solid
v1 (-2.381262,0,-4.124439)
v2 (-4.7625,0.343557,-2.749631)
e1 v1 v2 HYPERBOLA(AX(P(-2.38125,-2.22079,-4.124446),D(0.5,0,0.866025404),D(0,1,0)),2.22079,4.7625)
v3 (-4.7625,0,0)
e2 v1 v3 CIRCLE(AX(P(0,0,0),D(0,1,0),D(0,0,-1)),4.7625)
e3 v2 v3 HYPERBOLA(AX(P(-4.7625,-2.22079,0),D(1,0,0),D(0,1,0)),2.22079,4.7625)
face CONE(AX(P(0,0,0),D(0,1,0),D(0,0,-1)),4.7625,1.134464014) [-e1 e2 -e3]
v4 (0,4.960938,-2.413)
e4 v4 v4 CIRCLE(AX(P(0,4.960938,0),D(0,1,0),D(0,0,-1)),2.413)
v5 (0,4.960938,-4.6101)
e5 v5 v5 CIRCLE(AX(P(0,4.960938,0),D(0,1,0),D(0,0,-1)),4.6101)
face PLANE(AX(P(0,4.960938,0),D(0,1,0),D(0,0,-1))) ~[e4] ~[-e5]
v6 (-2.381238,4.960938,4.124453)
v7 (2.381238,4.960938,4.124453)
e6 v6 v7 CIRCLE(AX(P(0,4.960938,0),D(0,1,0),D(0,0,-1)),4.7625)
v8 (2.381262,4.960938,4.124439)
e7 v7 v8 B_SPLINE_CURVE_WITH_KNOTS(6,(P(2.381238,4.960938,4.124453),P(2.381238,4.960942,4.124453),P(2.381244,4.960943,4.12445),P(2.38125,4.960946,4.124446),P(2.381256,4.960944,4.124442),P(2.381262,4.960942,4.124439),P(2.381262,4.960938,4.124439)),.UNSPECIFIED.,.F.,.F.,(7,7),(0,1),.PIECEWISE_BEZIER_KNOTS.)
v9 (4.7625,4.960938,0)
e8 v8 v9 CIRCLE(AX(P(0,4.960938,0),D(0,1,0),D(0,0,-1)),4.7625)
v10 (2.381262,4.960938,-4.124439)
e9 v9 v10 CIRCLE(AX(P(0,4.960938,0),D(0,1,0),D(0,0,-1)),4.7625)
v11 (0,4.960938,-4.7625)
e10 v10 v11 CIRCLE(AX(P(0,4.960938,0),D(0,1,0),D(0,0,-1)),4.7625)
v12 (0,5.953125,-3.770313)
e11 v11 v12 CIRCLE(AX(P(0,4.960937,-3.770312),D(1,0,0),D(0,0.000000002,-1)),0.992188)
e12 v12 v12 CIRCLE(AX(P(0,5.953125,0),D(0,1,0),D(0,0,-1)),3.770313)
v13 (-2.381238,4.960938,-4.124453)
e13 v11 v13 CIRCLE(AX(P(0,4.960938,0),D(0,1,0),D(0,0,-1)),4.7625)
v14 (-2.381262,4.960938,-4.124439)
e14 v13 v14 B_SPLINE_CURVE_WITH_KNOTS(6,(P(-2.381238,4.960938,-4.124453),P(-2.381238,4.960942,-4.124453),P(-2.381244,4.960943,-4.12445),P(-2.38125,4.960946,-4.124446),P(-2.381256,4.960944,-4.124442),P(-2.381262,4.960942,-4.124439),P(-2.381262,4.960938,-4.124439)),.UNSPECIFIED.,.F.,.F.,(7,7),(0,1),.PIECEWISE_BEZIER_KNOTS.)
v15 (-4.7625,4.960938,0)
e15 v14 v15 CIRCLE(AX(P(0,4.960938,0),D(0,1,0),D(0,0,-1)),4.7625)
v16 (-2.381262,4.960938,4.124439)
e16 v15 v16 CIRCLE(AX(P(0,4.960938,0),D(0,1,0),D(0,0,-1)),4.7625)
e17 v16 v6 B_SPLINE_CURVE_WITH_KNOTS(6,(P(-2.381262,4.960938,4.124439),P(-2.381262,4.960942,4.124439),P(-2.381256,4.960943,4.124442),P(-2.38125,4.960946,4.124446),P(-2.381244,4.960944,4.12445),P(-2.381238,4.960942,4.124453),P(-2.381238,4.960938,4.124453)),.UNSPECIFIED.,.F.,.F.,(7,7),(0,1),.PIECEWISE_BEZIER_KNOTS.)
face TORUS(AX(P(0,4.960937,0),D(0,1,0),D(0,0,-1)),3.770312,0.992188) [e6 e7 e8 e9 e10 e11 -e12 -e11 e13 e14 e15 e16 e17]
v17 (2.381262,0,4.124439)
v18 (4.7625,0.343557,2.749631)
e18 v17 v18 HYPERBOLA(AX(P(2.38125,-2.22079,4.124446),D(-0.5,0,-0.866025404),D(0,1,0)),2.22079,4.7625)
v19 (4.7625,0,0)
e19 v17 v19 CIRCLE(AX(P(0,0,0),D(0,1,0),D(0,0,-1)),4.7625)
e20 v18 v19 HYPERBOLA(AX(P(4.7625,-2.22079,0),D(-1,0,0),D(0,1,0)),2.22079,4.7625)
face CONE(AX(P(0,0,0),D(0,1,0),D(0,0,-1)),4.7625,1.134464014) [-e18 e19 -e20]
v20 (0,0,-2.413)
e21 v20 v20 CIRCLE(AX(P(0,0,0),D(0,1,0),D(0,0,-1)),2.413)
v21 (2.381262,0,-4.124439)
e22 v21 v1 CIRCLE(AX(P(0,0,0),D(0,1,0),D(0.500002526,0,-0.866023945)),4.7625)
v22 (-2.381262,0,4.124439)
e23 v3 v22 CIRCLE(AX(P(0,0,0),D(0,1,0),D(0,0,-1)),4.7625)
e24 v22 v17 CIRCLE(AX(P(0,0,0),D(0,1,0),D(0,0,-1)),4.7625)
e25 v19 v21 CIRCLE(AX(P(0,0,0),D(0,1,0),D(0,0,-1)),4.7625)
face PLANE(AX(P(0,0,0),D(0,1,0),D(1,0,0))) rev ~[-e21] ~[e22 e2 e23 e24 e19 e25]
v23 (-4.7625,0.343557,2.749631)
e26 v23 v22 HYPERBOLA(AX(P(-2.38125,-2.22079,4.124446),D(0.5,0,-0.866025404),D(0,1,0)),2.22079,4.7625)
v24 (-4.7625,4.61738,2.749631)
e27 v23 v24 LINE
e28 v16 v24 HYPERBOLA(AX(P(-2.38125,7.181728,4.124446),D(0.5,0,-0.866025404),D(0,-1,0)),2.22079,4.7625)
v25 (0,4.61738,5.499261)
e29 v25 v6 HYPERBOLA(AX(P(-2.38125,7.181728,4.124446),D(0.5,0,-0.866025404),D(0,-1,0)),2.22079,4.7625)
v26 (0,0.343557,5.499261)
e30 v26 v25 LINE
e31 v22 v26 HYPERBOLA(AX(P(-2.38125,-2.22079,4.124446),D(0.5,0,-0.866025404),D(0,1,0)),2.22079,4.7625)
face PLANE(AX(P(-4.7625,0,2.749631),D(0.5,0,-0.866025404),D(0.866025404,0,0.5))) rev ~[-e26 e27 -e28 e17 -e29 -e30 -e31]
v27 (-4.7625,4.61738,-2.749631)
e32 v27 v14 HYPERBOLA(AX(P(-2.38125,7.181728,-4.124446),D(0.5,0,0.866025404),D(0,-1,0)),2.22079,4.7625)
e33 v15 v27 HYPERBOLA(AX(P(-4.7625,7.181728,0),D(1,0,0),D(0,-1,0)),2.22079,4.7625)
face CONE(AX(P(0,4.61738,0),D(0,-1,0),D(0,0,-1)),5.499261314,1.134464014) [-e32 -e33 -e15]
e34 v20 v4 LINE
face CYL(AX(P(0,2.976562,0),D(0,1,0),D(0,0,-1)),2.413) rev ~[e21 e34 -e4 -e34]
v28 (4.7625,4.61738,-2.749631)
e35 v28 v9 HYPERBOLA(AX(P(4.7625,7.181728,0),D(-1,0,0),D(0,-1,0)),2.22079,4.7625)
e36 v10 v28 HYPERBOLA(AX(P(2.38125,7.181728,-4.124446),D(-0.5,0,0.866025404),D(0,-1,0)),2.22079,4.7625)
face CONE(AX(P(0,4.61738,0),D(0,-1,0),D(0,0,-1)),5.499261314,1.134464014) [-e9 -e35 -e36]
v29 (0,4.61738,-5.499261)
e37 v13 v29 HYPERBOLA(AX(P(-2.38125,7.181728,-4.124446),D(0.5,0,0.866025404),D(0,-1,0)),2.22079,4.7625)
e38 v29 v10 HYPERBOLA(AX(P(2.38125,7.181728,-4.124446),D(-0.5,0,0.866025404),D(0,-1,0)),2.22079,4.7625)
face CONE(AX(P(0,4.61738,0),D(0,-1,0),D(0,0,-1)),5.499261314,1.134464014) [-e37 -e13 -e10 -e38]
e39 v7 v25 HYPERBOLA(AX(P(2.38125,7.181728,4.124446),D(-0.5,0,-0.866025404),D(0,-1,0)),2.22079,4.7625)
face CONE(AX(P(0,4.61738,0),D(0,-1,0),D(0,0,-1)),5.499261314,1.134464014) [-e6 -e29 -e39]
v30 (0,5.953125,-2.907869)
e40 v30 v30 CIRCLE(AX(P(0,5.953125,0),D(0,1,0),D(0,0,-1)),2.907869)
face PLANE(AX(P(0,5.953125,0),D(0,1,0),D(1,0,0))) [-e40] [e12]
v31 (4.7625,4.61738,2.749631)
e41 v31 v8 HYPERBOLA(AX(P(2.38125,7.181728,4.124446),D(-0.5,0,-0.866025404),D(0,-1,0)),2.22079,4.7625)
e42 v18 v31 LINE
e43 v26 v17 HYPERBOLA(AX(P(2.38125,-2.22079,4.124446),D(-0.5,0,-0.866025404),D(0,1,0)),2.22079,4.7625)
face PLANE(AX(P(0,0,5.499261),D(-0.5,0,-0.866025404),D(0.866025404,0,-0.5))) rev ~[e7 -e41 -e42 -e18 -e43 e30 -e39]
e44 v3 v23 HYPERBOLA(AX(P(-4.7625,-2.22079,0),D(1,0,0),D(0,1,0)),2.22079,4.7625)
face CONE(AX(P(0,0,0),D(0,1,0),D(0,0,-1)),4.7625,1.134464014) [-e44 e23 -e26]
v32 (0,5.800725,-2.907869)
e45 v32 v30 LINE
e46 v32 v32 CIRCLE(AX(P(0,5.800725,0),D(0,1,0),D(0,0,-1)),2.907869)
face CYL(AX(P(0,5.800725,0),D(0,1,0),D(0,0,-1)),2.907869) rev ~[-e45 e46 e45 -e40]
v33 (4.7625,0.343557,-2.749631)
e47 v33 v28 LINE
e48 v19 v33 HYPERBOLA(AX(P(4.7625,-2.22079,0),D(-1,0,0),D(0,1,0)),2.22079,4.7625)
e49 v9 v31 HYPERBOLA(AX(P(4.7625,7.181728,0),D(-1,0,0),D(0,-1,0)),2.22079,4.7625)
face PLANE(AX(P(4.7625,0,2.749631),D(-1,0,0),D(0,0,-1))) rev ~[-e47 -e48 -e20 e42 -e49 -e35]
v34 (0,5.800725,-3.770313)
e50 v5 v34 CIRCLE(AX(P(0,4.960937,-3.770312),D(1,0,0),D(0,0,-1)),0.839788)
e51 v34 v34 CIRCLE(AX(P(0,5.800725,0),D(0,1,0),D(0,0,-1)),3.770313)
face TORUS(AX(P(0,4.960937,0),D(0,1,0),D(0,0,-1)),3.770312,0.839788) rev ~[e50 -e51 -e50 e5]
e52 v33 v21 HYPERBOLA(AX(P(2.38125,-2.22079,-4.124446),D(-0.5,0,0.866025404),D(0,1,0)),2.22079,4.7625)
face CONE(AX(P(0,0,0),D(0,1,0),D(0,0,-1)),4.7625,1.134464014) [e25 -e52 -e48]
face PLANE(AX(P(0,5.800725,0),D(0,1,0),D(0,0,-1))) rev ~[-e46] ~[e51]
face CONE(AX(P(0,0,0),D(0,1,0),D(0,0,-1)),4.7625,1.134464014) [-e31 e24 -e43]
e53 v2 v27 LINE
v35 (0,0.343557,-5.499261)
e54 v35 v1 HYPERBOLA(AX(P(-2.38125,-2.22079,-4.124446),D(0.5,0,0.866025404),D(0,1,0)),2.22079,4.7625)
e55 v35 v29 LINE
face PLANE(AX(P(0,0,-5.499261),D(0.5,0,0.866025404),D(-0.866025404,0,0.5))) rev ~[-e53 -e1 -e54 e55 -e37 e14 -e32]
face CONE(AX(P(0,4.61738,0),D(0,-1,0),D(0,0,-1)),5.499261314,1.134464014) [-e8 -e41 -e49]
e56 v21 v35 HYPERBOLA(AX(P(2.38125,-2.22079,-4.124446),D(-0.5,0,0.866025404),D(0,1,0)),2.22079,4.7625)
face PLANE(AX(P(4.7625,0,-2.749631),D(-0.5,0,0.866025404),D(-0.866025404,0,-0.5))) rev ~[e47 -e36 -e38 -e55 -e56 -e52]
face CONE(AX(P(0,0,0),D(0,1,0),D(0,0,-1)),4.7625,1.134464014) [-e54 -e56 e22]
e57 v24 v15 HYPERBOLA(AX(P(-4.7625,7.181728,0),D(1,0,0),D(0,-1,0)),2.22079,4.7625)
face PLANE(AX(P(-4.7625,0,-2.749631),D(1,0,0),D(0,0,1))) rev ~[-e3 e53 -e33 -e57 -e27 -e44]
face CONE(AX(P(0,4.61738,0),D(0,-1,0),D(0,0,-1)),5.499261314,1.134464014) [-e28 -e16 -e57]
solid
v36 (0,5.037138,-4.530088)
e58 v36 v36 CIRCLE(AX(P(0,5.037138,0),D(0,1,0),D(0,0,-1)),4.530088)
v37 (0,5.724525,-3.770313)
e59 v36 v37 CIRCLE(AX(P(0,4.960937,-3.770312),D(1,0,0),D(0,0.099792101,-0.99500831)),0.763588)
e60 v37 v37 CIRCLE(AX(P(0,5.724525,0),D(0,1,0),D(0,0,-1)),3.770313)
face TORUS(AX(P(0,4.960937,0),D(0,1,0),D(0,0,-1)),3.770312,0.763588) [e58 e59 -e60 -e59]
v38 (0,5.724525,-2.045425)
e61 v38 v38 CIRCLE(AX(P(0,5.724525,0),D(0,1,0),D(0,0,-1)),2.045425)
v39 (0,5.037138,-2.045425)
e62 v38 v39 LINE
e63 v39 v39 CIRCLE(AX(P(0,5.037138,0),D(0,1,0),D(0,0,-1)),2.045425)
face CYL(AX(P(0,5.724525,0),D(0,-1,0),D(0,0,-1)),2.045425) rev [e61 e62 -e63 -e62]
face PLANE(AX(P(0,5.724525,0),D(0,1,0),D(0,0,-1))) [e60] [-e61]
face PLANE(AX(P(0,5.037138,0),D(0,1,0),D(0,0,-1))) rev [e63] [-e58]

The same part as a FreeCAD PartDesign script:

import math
import FreeCAD as App
import Part
import Sketcher
Q = App.Units.Quantity

doc = App.newDocument("Part")
params = doc.addObject("Spreadsheet::Sheet", "Params")
for row, (alias, value) in enumerate([
    ("pad1_length", "0.234375 in"),
    ("sketch2_width", "0.234375 in"),
    ("sketch2_height", "0.095 in"),
    ("revolution_angle", "360 deg"),
    ("sketch3_width", "0.05 in"),
    ("sketch3_height", "0.1875 in"),
    ("groove_angle", "360 deg"),
    ("sketch4_width", "0.056 in"),
    ("groove2_angle", "360 deg"),
    ("revolution2_angle", "360 deg"),
], start=1):
    params.set(f"A{row}", alias)
    params.set(f"B{row}", "=" + value)
    params.setAlias(f"B{row}", alias)

body = doc.addObject("PartDesign::Body", "Body")

# Sketch on XZ plane
sketch1 = body.newObject("Sketcher::SketchObject", "Sketch")
sketch1.AttachmentSupport = (doc.getObject("XZ_Plane"), [""])
sketch1.MapMode = "FlatFace"
sketch1.addGeometry(Part.LineSegment(App.Vector(0, -5, 0), App.Vector(-5, -3, 0)), False)
sketch1.addGeometry(Part.LineSegment(App.Vector(-5, -3, 0), App.Vector(-5, 3, 0)), False)
sketch1.addGeometry(Part.LineSegment(App.Vector(-5, 3, 0), App.Vector(0, 5, 0)), False)
sketch1.addGeometry(Part.LineSegment(App.Vector(0, 5, 0), App.Vector(5, 3, 0)), False)
sketch1.addGeometry(Part.LineSegment(App.Vector(5, 3, 0), App.Vector(5, -3, 0)), False)
sketch1.addGeometry(Part.LineSegment(App.Vector(5, -3, 0), App.Vector(0, -5, 0)), False)
sketch1.addConstraint(Sketcher.Constraint("Coincident", 0, 2, 1, 1))
sketch1.addConstraint(Sketcher.Constraint("Coincident", 1, 2, 2, 1))
sketch1.addConstraint(Sketcher.Constraint("Coincident", 2, 2, 3, 1))
sketch1.addConstraint(Sketcher.Constraint("Coincident", 3, 2, 4, 1))
sketch1.addConstraint(Sketcher.Constraint("Coincident", 4, 2, 5, 1))
sketch1.addConstraint(Sketcher.Constraint("Coincident", 5, 2, 0, 1))
sketch1.addConstraint(Sketcher.Constraint("Vertical", 1))
sketch1.addConstraint(Sketcher.Constraint("Vertical", 4))
sketch1.addConstraint(Sketcher.Constraint("Symmetric", 0, 2, 3, 2, -1, 1))
sketch1.addConstraint(Sketcher.Constraint("Symmetric", 2, 2, 5, 2, -1, 1))
sketch1.addConstraint(Sketcher.Constraint("PointOnObject", 2, 2, -2))
sketch1.addConstraint(Sketcher.Constraint("Parallel", 2, 5))
sketch1.addConstraint(Sketcher.Constraint("Horizontal", 1, 2, 3, 2))
sketch1.addConstraint(Sketcher.Constraint("Angle", 0, Q("150 deg")))
sketch1.addConstraint(Sketcher.Constraint("DistanceX", 0, 2, -1, 1, Q("0.1875 in")))
sketch1.addConstraint(Sketcher.Constraint("DistanceY", 1, 1, 1, 2, Q("5.499261 mm")))
pad1 = body.newObject("PartDesign::Pad", "Pad")
pad1.Profile = sketch1
pad1.setExpression("Length", "Params.pad1_length")
pad1.Reversed = True
body2 = doc.addObject("PartDesign::Body", "Body001")

# Sketch on YZ plane
sketch2 = body2.newObject("Sketcher::SketchObject", "Sketch001")
sketch2.AttachmentSupport = (doc.getObject("YZ_Plane001"), [""])
sketch2.MapMode = "FlatFace"
sketch2.addGeometry(Part.LineSegment(App.Vector(6, 0, 0), App.Vector(0, 0, 0)), False)
sketch2.addGeometry(Part.LineSegment(App.Vector(0, 0, 0), App.Vector(0, -2.4, 0)), False)
sketch2.addGeometry(Part.LineSegment(App.Vector(0, -2.4, 0), App.Vector(6, -2.4, 0)), False)
sketch2.addGeometry(Part.LineSegment(App.Vector(6, -2.4, 0), App.Vector(6, 0, 0)), False)
sketch2.addConstraint(Sketcher.Constraint("Coincident", 0, 2, 1, 1))
sketch2.addConstraint(Sketcher.Constraint("Coincident", 1, 2, 2, 1))
sketch2.addConstraint(Sketcher.Constraint("Coincident", 2, 2, 3, 1))
sketch2.addConstraint(Sketcher.Constraint("Coincident", 3, 2, 0, 1))
sketch2.addConstraint(Sketcher.Constraint("Horizontal", 0))
sketch2.addConstraint(Sketcher.Constraint("Vertical", 1))
sketch2.addConstraint(Sketcher.Constraint("Horizontal", 2))
sketch2.addConstraint(Sketcher.Constraint("Vertical", 3))
sketch2.addConstraint(Sketcher.Constraint("Coincident", 0, 2, -1, 1))
sketch2.addConstraint(Sketcher.Constraint("DistanceX", 0, 2, 0, 1, Q("0.234375 in")))
sketch2.addConstraint(Sketcher.Constraint("DistanceY", 1, 2, 1, 1, Q("0.095 in")))
sketch2.setExpression("Constraints[9]", "Params.sketch2_width")
sketch2.setExpression("Constraints[10]", "Params.sketch2_height")
revolution = body2.newObject("PartDesign::Revolution", "Revolution")
revolution.Profile = sketch2
revolution.ReferenceAxis = (sketch2, ["H_Axis"])
revolution.setExpression("Angle", "Params.revolution_angle")
doc.recompute()

boolean = body.newObject("PartDesign::Boolean", "Boolean")
boolean.Type = "Cut"
boolean.addObjects([body2])

# Sketch on YZ plane
sketch3 = body.newObject("Sketcher::SketchObject", "Sketch002")
sketch3.AttachmentSupport = (doc.getObject("YZ_Plane"), [""])
sketch3.MapMode = "FlatFace"
sketch3.addGeometry(Part.LineSegment(App.Vector(0, -4.8, 0), App.Vector(0, 0, 0)), False)
sketch3.addGeometry(Part.LineSegment(App.Vector(0, 0, 0), App.Vector(-1.3, 0, 0)), False)
sketch3.addGeometry(Part.LineSegment(App.Vector(-1.3, 0, 0), App.Vector(-1.3, -6.8, 0)), False)
sketch3.addGeometry(Part.LineSegment(App.Vector(-1.3, -6.8, 0), App.Vector(7.2, -6.8, 0)), False)
sketch3.addGeometry(Part.LineSegment(App.Vector(7.2, -6.8, 0), App.Vector(7.2, -3.8, 0)), False)
sketch3.addGeometry(Part.LineSegment(App.Vector(7.2, -3.8, 0), App.Vector(6, -3.8, 0)), False)
sketch3.addGeometry(Part.ArcOfCircle(Part.Circle(App.Vector(5, -3.8, 0), App.Vector(0, 0, 1), 1), math.radians(-90), math.radians(0)), False)
sketch3.addGeometry(Part.LineSegment(App.Vector(5, -4.8, 0), App.Vector(4.6, -5.5, 0)), False)
sketch3.addGeometry(Part.LineSegment(App.Vector(4.6, -5.5, 0), App.Vector(0.3, -5.5, 0)), False)
sketch3.addGeometry(Part.LineSegment(App.Vector(0.3, -5.5, 0), App.Vector(0, -4.8, 0)), False)
sketch3.addConstraint(Sketcher.Constraint("Coincident", 0, 2, 1, 1))
sketch3.addConstraint(Sketcher.Constraint("Coincident", 1, 2, 2, 1))
sketch3.addConstraint(Sketcher.Constraint("Coincident", 2, 2, 3, 1))
sketch3.addConstraint(Sketcher.Constraint("Coincident", 3, 2, 4, 1))
sketch3.addConstraint(Sketcher.Constraint("Coincident", 4, 2, 5, 1))
sketch3.addConstraint(Sketcher.Constraint("Coincident", 5, 2, 6, 2))
sketch3.addConstraint(Sketcher.Constraint("Coincident", 6, 1, 7, 1))
sketch3.addConstraint(Sketcher.Constraint("Coincident", 7, 2, 8, 1))
sketch3.addConstraint(Sketcher.Constraint("Coincident", 8, 2, 9, 1))
sketch3.addConstraint(Sketcher.Constraint("Coincident", 9, 2, 0, 1))
sketch3.addConstraint(Sketcher.Constraint("Vertical", 0))
sketch3.addConstraint(Sketcher.Constraint("Horizontal", 1))
sketch3.addConstraint(Sketcher.Constraint("Vertical", 2))
sketch3.addConstraint(Sketcher.Constraint("Horizontal", 3))
sketch3.addConstraint(Sketcher.Constraint("Vertical", 4))
sketch3.addConstraint(Sketcher.Constraint("Horizontal", 5))
sketch3.addConstraint(Sketcher.Constraint("Horizontal", 8))
sketch3.addConstraint(Sketcher.Constraint("Coincident", 0, 2, -1, 1))
sketch3.addConstraint(Sketcher.Constraint("Horizontal", 6, 3, 4, 2))
sketch3.addConstraint(Sketcher.Constraint("Horizontal", 6, 1, 9, 2))
sketch3.addConstraint(Sketcher.Constraint("Equal", 1, 5))
sketch3.addConstraint(Sketcher.Constraint("Equal", 7, 9))
sketch3.addConstraint(Sketcher.Constraint("Angle", 7, Q("-115 deg")))
sketch3.addConstraint(Sketcher.Constraint("DistanceX", 1, 2, 1, 1, Q("0.05 in")))
sketch3.addConstraint(Sketcher.Constraint("DistanceY", 0, 1, 0, 2, Q("0.1875 in")))
sketch3.addConstraint(Sketcher.Constraint("DistanceY", 3, 2, 7, 2, Q("0.05 in")))
sketch3.addConstraint(Sketcher.Constraint("DistanceX", -1, 1, 5, 2, Q("0.234375 in")))
sketch3.addConstraint(Sketcher.Constraint("Radius", 6, Q("0.992188 mm")))
sketch3.addConstraint(Sketcher.Constraint("DistanceY", 2, 2, 2, 1, Q("6.769261 mm")))
sketch3.addConstraint(Sketcher.Constraint("DistanceX", 8, 2, 8, 1, Q("4.273823 mm")))
sketch3.setExpression("Constraints[23]", "Params.sketch3_width")
sketch3.setExpression("Constraints[24]", "Params.sketch3_height")
groove = body.newObject("PartDesign::Groove", "Groove")
groove.Profile = sketch3
groove.ReferenceAxis = (sketch3, ["H_Axis"])
groove.setExpression("Angle", "Params.groove_angle")

# Sketch on YZ plane
sketch4 = body.newObject("Sketcher::SketchObject", "Sketch003")
sketch4.AttachmentSupport = (doc.getObject("YZ_Plane"), [""])
sketch4.MapMode = "FlatFace"
sketch4.addGeometry(Part.LineSegment(App.Vector(5, 0, 0), App.Vector(5, -4.6, 0)), False)
sketch4.addGeometry(Part.ArcOfCircle(Part.Circle(App.Vector(5, -3.8, 0), App.Vector(0, 0, 1), 0.8), math.radians(-90), math.radians(0)), False)
sketch4.addGeometry(Part.LineSegment(App.Vector(5.8, -3.8, 0), App.Vector(5.8, -2.9, 0)), False)
sketch4.addGeometry(Part.LineSegment(App.Vector(5.8, -2.9, 0), App.Vector(7.2, -2.9, 0)), False)
sketch4.addGeometry(Part.LineSegment(App.Vector(7.2, -2.9, 0), App.Vector(7.2, 0, 0)), False)
sketch4.addGeometry(Part.LineSegment(App.Vector(7.2, 0, 0), App.Vector(5, 0, 0)), False)
sketch4.addConstraint(Sketcher.Constraint("Coincident", 0, 2, 1, 1))
sketch4.addConstraint(Sketcher.Constraint("Tangent", 1, 2, 2, 1))
sketch4.addConstraint(Sketcher.Constraint("Coincident", 2, 2, 3, 1))
sketch4.addConstraint(Sketcher.Constraint("Coincident", 3, 2, 4, 1))
sketch4.addConstraint(Sketcher.Constraint("Coincident", 4, 2, 5, 1))
sketch4.addConstraint(Sketcher.Constraint("Coincident", 5, 2, 0, 1))
sketch4.addConstraint(Sketcher.Constraint("Vertical", 0))
sketch4.addConstraint(Sketcher.Constraint("Vertical", 2))
sketch4.addConstraint(Sketcher.Constraint("Horizontal", 3))
sketch4.addConstraint(Sketcher.Constraint("Vertical", 4))
sketch4.addConstraint(Sketcher.Constraint("Horizontal", 5))
sketch4.addConstraint(Sketcher.Constraint("PointOnObject", 4, 2, -1))
sketch4.addConstraint(Sketcher.Constraint("Vertical", 1, 3, 0, 2))
sketch4.addConstraint(Sketcher.Constraint("DistanceX", 3, 1, 3, 2, Q("0.056 in")))
sketch4.addConstraint(Sketcher.Constraint("DistanceY", 0, 2, 0, 1, Q("0.1815 in")))
sketch4.addConstraint(Sketcher.Constraint("Radius", 1, Q("0.839788 mm")))
sketch4.addConstraint(Sketcher.Constraint("DistanceY", 4, 1, 4, 2, Q("2.907869 mm")))
sketch4.addConstraint(Sketcher.Constraint("DistanceX", -1, 1, 1, 3, Q("4.960938 mm")))
sketch4.setExpression("Constraints[13]", "Params.sketch4_width")
groove2 = body.newObject("PartDesign::Groove", "Groove001")
groove2.Profile = sketch4
groove2.ReferenceAxis = (sketch4, ["H_Axis"])
groove2.setExpression("Angle", "Params.groove2_angle")
body3 = doc.addObject("PartDesign::Body", "Body002")

# Sketch on YZ plane
sketch5 = body3.newObject("Sketcher::SketchObject", "Sketch004")
sketch5.AttachmentSupport = (doc.getObject("YZ_Plane002"), [""])
sketch5.MapMode = "FlatFace"
sketch5.addGeometry(Part.LineSegment(App.Vector(5, -2, 0), App.Vector(5, -4.5, 0)), False)
sketch5.addGeometry(Part.ArcOfCircle(Part.Circle(App.Vector(5, -3.8, 0), App.Vector(0, 0, 1), 0.8), math.radians(-84), math.radians(0)), False)
sketch5.addGeometry(Part.LineSegment(App.Vector(5.7, -3.8, 0), App.Vector(5.7, -2, 0)), False)
sketch5.addGeometry(Part.LineSegment(App.Vector(5.7, -2, 0), App.Vector(5, -2, 0)), False)
sketch5.addConstraint(Sketcher.Constraint("Coincident", 0, 2, 1, 1))
sketch5.addConstraint(Sketcher.Constraint("Tangent", 1, 2, 2, 1))
sketch5.addConstraint(Sketcher.Constraint("Coincident", 2, 2, 3, 1))
sketch5.addConstraint(Sketcher.Constraint("Coincident", 3, 2, 0, 1))
sketch5.addConstraint(Sketcher.Constraint("Vertical", 0))
sketch5.addConstraint(Sketcher.Constraint("Vertical", 2))
sketch5.addConstraint(Sketcher.Constraint("Horizontal", 3))
sketch5.addConstraint(Sketcher.Constraint("DistanceX", 1, 3, 0, 2, Q("0.003 in")))
sketch5.addConstraint(Sketcher.Constraint("Radius", 1, Q("0.763588 mm")))
sketch5.addConstraint(Sketcher.Constraint("DistanceY", 0, 2, 0, 1, Q("2.484664 mm")))
sketch5.addConstraint(Sketcher.Constraint("DistanceY", 0, 2, -1, 1, Q("4.530088 mm")))
sketch5.addConstraint(Sketcher.Constraint("DistanceX", -1, 1, 1, 3, Q("4.960937 mm")))
revolution2 = body3.newObject("PartDesign::Revolution", "Revolution001")
revolution2.Profile = sketch5
revolution2.ReferenceAxis = (sketch5, ["H_Axis"])
revolution2.setExpression("Angle", "Params.revolution2_angle")

doc.recompute()
